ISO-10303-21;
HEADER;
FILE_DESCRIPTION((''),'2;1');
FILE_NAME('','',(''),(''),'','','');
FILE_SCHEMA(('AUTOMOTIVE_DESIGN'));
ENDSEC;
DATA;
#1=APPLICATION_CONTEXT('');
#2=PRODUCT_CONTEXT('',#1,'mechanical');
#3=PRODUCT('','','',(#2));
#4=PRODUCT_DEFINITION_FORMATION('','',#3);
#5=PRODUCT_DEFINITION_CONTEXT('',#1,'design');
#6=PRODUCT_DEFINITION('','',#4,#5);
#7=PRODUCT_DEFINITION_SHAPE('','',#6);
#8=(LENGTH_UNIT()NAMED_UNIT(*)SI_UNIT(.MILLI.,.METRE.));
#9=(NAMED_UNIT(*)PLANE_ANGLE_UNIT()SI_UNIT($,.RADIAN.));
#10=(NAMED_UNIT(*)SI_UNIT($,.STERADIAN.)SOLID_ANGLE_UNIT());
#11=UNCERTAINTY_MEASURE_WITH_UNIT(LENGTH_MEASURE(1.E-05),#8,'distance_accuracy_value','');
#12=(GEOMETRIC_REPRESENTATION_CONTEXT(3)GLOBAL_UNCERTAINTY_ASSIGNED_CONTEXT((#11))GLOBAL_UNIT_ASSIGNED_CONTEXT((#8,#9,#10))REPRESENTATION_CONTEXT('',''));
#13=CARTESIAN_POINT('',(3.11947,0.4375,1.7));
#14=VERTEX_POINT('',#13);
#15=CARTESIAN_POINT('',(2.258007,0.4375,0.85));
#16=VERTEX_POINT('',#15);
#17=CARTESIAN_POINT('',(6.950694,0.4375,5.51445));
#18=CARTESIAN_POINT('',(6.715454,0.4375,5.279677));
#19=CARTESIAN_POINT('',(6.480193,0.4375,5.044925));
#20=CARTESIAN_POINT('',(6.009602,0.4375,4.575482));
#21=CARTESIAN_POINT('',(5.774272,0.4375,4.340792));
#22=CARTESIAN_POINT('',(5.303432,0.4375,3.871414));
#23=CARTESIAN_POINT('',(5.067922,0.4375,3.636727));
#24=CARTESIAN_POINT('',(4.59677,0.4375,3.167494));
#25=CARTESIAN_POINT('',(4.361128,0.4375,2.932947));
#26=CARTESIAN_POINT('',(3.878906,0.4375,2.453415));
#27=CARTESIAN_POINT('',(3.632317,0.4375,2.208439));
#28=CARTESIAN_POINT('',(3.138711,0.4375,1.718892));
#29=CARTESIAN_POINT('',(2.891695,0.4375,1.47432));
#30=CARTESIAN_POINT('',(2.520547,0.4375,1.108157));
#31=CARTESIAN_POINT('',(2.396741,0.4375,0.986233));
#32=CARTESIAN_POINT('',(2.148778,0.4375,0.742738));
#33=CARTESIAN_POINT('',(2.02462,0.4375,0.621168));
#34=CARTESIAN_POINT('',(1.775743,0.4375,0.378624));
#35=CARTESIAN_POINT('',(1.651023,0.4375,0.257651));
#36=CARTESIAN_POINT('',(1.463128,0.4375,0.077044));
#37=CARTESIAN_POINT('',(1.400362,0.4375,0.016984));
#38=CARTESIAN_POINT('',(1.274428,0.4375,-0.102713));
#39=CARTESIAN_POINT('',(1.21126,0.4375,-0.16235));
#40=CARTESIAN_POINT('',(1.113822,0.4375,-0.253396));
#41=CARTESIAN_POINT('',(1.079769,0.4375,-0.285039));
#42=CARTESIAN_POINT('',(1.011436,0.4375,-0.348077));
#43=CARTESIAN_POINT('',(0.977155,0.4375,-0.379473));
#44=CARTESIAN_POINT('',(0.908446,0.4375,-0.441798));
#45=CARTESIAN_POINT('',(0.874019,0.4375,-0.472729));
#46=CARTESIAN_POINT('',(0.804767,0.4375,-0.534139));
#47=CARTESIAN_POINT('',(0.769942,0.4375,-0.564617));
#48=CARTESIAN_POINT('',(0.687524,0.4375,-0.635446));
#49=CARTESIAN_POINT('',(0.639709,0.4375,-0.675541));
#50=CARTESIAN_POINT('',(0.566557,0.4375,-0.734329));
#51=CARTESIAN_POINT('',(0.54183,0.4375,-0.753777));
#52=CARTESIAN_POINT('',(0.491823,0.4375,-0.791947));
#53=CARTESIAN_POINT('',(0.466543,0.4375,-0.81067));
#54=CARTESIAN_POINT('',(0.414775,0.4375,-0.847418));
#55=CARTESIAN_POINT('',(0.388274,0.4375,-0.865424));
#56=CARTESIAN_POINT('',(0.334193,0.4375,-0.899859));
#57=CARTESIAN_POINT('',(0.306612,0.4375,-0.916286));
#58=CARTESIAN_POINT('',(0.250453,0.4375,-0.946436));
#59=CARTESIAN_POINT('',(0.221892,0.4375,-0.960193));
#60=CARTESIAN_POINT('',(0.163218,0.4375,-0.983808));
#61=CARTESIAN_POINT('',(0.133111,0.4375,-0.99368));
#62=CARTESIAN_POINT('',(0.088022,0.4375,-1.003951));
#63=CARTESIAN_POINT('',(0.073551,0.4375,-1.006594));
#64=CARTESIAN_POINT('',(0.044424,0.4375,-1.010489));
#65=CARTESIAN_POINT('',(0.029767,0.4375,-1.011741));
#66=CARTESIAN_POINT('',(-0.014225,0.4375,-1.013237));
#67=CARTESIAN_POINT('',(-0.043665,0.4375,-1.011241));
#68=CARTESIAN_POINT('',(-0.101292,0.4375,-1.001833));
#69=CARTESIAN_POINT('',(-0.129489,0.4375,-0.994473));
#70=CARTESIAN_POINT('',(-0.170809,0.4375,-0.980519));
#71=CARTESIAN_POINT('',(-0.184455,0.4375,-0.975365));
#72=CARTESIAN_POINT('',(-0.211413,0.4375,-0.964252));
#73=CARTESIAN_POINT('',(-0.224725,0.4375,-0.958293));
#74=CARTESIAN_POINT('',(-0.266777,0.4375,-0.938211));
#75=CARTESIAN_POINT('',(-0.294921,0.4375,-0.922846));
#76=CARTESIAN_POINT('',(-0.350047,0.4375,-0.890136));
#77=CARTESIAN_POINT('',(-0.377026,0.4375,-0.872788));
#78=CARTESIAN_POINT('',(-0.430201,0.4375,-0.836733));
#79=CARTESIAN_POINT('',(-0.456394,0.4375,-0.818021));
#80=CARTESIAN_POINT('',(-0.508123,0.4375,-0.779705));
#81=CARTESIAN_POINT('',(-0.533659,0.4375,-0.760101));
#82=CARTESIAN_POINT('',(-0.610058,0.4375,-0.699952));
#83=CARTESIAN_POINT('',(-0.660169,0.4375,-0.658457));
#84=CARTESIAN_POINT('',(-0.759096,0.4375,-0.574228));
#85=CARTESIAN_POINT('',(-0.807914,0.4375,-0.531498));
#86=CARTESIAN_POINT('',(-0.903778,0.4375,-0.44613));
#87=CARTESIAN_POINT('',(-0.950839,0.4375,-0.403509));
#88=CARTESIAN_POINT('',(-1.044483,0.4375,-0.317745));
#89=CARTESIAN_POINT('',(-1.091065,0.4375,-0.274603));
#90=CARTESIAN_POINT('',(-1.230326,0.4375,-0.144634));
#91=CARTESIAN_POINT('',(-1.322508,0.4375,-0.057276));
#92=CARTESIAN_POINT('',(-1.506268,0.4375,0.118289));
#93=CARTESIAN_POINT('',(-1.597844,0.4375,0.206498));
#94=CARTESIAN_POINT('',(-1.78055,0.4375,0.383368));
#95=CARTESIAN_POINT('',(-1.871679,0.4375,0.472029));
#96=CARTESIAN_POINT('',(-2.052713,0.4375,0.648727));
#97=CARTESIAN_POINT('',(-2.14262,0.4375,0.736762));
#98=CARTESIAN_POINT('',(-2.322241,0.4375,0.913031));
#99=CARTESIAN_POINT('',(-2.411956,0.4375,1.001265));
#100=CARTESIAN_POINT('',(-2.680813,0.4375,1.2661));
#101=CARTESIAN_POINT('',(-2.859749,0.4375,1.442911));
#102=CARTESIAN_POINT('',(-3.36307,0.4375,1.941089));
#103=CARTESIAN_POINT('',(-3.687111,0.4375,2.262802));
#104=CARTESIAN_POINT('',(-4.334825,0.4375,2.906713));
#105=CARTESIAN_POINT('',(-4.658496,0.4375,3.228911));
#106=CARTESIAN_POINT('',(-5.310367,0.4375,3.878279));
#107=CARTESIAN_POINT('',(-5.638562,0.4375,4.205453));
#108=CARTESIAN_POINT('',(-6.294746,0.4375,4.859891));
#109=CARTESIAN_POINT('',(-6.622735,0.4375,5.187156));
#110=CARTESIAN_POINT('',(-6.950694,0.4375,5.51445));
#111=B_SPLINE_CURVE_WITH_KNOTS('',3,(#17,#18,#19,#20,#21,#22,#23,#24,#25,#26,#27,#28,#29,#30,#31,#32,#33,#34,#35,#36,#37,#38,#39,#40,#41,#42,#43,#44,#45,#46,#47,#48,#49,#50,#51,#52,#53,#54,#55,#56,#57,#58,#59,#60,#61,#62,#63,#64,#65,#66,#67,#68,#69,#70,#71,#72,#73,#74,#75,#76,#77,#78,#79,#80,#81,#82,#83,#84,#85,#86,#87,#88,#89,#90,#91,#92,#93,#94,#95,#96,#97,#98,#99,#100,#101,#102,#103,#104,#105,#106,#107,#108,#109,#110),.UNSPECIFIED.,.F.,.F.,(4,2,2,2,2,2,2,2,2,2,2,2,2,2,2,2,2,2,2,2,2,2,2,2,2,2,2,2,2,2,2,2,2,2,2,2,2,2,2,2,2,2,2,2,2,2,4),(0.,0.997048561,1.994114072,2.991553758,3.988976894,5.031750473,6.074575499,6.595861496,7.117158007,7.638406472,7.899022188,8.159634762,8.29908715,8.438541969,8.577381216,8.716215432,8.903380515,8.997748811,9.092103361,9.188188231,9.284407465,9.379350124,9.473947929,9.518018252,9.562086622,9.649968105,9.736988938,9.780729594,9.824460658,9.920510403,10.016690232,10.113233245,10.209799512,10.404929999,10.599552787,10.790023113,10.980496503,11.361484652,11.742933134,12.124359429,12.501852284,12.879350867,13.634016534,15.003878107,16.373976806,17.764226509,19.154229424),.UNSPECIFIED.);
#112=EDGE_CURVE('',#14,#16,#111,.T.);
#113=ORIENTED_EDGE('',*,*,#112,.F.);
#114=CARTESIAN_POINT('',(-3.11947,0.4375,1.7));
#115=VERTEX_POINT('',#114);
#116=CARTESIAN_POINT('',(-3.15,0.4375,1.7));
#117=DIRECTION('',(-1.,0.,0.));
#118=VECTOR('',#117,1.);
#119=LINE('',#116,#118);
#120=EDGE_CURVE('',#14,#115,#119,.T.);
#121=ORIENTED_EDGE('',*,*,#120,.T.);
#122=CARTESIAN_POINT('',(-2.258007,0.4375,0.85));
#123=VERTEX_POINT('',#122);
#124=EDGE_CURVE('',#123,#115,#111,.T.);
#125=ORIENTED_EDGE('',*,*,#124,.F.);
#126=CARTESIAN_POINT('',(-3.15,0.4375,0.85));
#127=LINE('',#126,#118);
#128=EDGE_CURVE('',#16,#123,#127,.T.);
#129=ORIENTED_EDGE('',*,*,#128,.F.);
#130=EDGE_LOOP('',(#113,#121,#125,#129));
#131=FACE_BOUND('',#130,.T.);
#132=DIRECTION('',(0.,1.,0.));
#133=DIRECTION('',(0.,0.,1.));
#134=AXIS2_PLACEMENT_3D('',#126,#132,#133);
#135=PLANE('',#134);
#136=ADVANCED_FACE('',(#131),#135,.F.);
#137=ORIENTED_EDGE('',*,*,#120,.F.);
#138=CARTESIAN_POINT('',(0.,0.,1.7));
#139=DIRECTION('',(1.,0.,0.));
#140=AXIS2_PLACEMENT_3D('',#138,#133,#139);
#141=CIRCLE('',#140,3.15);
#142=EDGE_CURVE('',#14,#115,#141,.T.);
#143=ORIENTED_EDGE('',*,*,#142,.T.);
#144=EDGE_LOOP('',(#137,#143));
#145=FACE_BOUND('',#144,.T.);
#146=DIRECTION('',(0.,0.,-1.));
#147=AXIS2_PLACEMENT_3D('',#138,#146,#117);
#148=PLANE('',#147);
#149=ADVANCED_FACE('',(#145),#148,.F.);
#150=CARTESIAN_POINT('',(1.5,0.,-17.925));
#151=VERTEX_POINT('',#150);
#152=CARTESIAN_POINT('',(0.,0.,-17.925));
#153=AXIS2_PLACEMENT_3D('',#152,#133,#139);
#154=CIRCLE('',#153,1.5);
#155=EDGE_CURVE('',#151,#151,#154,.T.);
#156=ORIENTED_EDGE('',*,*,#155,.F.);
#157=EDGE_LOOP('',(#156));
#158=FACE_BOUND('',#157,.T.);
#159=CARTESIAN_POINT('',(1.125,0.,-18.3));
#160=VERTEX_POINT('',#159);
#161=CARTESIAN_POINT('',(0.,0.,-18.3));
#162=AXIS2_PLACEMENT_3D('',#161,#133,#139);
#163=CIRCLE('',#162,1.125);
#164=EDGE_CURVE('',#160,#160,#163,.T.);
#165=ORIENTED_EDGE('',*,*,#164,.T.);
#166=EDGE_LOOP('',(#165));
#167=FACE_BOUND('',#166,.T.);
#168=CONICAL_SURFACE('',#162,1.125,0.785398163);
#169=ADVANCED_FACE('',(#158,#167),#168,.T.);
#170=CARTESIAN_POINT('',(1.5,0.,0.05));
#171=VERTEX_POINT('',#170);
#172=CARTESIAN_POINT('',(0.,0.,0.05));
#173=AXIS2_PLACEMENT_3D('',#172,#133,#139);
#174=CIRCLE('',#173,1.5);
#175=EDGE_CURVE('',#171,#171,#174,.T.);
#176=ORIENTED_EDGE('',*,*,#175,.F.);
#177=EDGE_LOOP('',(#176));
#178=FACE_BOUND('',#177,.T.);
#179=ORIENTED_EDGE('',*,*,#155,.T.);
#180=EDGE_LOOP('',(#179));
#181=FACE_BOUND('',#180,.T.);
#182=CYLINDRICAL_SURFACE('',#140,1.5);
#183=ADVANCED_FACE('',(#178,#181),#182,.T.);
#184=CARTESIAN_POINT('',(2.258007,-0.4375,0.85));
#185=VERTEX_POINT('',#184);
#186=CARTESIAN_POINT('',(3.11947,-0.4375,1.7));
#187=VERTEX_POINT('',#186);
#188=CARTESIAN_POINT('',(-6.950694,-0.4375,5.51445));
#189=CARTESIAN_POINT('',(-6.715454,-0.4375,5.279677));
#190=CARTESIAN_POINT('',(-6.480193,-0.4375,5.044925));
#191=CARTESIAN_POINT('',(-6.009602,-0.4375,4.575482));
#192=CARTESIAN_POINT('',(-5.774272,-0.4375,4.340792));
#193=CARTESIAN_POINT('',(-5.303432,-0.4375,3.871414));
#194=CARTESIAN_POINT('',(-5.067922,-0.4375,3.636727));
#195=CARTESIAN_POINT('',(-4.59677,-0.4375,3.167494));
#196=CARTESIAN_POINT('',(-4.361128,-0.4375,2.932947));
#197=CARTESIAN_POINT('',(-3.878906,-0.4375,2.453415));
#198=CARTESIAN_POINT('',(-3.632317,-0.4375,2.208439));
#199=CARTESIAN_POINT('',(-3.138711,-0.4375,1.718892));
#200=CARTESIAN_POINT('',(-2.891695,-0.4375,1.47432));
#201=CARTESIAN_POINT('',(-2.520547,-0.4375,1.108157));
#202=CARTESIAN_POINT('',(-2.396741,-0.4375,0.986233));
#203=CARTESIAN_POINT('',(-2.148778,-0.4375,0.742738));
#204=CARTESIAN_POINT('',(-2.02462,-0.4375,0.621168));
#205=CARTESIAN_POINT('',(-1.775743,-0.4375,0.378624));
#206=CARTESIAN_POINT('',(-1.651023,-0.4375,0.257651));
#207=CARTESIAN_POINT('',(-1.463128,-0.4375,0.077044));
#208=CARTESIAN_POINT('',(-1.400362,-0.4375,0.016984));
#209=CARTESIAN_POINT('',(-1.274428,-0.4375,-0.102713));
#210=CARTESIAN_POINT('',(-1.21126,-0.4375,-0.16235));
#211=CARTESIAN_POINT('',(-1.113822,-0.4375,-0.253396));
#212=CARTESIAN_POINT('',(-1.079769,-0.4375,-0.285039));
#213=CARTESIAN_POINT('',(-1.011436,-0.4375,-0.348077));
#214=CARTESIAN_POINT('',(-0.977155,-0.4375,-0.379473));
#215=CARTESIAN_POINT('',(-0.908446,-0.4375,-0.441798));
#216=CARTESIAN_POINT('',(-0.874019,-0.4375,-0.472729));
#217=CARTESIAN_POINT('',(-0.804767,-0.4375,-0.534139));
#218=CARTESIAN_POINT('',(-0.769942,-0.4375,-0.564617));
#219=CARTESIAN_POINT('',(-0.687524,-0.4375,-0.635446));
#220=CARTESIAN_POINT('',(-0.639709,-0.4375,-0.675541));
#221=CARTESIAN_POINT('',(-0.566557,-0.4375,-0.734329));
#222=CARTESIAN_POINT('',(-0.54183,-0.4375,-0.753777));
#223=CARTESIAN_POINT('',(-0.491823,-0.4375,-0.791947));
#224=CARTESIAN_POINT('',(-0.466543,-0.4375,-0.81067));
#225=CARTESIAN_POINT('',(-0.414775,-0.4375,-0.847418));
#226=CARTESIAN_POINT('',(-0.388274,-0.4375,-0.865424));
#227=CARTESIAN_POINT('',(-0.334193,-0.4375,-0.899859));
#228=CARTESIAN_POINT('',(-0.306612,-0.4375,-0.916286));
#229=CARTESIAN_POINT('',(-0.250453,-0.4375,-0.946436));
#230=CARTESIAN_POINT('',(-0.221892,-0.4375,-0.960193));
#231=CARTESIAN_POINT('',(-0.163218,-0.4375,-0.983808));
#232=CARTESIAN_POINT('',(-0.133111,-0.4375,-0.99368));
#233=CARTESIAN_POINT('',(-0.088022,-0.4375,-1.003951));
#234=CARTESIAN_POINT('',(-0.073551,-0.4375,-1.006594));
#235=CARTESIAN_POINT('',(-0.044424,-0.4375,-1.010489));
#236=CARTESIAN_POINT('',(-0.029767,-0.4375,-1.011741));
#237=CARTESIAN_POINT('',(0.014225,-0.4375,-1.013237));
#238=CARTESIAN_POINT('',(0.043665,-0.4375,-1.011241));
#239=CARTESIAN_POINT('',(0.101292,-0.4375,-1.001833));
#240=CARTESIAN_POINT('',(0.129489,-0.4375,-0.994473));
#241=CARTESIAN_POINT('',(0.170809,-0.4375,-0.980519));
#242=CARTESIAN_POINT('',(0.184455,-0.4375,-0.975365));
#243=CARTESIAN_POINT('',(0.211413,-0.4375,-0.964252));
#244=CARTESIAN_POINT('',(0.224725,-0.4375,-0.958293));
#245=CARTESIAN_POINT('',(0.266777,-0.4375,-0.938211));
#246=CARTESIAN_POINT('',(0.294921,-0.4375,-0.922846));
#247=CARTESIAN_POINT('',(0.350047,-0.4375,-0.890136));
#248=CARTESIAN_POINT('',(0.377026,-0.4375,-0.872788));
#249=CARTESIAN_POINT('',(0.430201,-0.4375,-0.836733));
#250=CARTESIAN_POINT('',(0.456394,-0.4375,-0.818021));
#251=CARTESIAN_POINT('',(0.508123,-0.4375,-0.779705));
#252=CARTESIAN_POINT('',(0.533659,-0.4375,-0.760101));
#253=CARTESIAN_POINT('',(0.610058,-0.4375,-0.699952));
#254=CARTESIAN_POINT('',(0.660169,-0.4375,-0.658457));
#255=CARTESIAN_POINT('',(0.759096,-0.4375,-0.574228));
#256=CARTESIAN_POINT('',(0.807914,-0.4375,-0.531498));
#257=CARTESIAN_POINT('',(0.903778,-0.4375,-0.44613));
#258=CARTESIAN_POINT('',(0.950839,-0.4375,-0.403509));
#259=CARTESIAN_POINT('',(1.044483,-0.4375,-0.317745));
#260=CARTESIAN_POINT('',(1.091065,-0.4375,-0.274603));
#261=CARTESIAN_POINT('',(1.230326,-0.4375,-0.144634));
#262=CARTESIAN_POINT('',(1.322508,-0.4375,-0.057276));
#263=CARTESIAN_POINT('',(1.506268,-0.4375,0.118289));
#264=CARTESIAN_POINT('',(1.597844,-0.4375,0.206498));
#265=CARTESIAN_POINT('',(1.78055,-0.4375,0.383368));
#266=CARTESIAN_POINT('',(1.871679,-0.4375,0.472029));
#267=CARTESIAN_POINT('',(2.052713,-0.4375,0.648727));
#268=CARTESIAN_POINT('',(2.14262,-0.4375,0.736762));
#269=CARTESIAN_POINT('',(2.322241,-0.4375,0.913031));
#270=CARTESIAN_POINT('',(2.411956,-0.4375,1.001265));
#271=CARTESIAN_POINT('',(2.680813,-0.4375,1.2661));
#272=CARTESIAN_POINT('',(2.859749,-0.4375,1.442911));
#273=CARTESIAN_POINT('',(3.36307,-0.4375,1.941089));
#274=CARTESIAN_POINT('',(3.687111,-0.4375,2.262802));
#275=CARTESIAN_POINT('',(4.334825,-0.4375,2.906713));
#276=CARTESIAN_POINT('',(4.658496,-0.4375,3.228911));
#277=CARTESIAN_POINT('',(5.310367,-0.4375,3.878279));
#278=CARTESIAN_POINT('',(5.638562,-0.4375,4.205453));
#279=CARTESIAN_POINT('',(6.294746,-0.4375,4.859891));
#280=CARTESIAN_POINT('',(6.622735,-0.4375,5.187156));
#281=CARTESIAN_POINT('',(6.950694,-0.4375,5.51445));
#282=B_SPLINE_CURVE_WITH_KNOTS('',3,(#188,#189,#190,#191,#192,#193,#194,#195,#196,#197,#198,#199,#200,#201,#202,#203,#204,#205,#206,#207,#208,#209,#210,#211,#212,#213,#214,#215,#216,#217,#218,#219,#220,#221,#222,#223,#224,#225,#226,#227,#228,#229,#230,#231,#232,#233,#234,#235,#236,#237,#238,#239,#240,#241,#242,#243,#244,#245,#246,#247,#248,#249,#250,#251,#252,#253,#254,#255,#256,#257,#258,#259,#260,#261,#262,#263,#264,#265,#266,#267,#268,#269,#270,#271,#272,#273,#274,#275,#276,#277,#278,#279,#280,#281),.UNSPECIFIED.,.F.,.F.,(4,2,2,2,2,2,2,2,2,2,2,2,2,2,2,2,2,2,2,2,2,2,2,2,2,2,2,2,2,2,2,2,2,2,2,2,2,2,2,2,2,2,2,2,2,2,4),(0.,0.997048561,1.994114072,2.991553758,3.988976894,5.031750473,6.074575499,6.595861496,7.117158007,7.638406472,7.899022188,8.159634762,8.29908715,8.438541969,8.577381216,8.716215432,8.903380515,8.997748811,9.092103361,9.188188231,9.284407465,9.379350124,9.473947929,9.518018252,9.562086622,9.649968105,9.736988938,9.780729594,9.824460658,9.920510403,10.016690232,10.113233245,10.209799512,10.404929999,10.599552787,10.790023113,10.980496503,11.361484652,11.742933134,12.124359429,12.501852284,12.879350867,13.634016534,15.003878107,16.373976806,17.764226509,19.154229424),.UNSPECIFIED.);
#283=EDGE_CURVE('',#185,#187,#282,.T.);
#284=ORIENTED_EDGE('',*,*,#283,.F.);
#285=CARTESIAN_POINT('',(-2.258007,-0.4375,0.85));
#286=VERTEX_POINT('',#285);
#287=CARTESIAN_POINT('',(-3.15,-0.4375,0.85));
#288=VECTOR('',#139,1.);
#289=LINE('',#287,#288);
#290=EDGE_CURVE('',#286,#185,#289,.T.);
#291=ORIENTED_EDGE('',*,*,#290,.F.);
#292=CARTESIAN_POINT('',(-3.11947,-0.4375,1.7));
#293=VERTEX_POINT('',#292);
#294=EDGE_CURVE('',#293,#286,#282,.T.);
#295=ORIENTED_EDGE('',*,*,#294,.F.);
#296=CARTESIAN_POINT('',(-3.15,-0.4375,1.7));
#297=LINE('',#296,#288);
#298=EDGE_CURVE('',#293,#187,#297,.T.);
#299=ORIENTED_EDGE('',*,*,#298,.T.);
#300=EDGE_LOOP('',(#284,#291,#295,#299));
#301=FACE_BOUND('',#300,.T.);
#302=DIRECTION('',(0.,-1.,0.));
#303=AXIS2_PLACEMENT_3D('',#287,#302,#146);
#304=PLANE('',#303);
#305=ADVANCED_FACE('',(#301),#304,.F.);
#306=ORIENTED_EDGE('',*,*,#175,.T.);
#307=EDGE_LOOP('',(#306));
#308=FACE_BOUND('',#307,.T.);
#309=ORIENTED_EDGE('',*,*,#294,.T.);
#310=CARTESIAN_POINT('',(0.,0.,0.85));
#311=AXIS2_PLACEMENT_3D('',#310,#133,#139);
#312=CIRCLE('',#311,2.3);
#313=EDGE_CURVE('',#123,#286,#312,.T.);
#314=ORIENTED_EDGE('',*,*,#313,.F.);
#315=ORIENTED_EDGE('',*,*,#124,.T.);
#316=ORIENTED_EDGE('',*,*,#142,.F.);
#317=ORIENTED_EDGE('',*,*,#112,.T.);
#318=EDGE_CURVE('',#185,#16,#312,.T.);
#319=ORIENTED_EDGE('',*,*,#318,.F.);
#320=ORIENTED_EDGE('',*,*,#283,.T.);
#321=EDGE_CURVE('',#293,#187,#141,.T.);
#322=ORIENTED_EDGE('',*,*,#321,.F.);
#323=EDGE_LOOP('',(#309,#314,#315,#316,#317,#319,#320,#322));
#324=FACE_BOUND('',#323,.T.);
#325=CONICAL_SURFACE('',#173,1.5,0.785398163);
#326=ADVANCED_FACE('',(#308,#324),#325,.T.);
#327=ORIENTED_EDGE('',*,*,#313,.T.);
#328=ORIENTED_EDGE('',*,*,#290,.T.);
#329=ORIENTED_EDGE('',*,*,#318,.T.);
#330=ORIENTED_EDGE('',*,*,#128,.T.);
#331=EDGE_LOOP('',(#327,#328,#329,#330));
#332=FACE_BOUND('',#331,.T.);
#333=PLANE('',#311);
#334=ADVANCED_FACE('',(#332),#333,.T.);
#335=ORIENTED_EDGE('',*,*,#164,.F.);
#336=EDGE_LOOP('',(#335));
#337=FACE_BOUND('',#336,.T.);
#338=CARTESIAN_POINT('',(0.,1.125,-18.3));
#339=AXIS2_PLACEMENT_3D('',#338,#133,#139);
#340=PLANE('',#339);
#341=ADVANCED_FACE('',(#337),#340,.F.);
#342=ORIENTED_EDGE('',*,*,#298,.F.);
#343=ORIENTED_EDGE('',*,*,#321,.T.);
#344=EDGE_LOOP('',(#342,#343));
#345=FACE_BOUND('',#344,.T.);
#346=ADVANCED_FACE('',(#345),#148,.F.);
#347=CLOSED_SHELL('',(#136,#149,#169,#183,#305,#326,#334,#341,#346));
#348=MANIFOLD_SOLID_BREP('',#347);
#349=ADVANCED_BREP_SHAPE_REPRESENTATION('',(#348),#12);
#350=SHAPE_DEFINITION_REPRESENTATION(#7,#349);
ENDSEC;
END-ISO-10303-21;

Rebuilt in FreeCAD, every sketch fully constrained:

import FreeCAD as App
import Part
import Sketcher

V = App.Vector
Q = App.Units.Quantity


def add_polygon(sketch, points):
    """Adds a closed chain of lines whose ends are joined by coincident constraints."""
    first, n = sketch.GeometryCount, len(points)
    for a, b in zip(points, points[1:] + points[:1]):
        sketch.addGeometry(Part.LineSegment(App.Vector(*a, 0), App.Vector(*b, 0)), False)
    for i in range(n):
        sketch.addConstraint(Sketcher.Constraint("Coincident", first + i, 2, first + (i + 1) % n, 1))

doc = App.newDocument("Part")
params = doc.addObject("Spreadsheet::Sheet", "Params")
for row, (alias, value) in enumerate([
    ("sketch1_height", "20 mm"),
    ("sketch1_width", "3.15 mm"),
    ("revolution_angle", "360 deg"),
    ("sketch2_width", "6.3 mm"),
    ("pocket1_length", "0.85 mm"),
], start=1):
    params.set(f"A{row}", alias)
    params.set(f"B{row}", "=" + value)
    params.setAlias(f"B{row}", alias)

body = doc.addObject("PartDesign::Body", "Body")

# Sketch on YZ plane
sketch1 = doc.addObject("Sketcher::SketchObject", "Sketch")
body.addObject(sketch1)
sketch1.AttachmentSupport = (doc.YZ_Plane, [""])
sketch1.MapMode = "FlatFace"
add_polygon(sketch1, [(1.5, 0.1), (3.1, 1.7), (0, 1.7), (0, -18.3), (1.1, -18.3), (1.5, -17.9)])  # lines 0-5
sketch1.addConstraint(Sketcher.Constraint("Horizontal", 1))
sketch1.addConstraint(Sketcher.Constraint("Vertical", 2))
sketch1.addConstraint(Sketcher.Constraint("Horizontal", 3))
sketch1.addConstraint(Sketcher.Constraint("Vertical", 5))
sketch1.addConstraint(Sketcher.Constraint("PointOnObject", 1, 2, -2))
sketch1.addConstraint(Sketcher.Constraint("Parallel", 0, 4))
sketch1.addConstraint(Sketcher.Constraint("DistanceY", 2, 2, 2, 1, 20.0))
sketch1.addConstraint(Sketcher.Constraint("Angle", 0, Q("45 deg")))
sketch1.addConstraint(Sketcher.Constraint("DistanceX", 1, 2, 1, 1, 3.15))
sketch1.addConstraint(Sketcher.Constraint("DistanceY", -1, 1, 0, 2, 1.7))
sketch1.addConstraint(Sketcher.Constraint("DistanceX", -1, 1, 4, 2, 1.5))
sketch1.addConstraint(Sketcher.Constraint("DistanceX", 3, 1, 3, 2, 1.125))
sketch1.setExpression("Constraints[12]", "Params.sketch1_height")
sketch1.setExpression("Constraints[14]", "Params.sketch1_width")
revolution = doc.addObject("PartDesign::Revolution", "Revolution")
body.addObject(revolution)
revolution.Profile = sketch1
revolution.ReferenceAxis = (sketch1, ["V_Axis"])
revolution.setExpression("Angle", "Params.revolution_angle")

# Sketch on XY plane
sketch2 = doc.addObject("Sketcher::SketchObject", "Sketch001")
body.addObject(sketch2)
sketch2.AttachmentSupport = (doc.XY_Plane, [""])
sketch2.MapMode = "FlatFace"
sketch2.AttachmentOffset = App.Placement(V(0, 0, 1.7), App.Rotation())
add_polygon(sketch2, [(-3.1, 0.4), (-3.1, -0.4), (3.1, -0.4), (3.1, 0.4)])  # lines 0-3
sketch2.addConstraint(Sketcher.Constraint("Vertical", 0))
sketch2.addConstraint(Sketcher.Constraint("Horizontal", 1))
sketch2.addConstraint(Sketcher.Constraint("Vertical", 2))
sketch2.addConstraint(Sketcher.Constraint("Horizontal", 3))
sketch2.addConstraint(Sketcher.Constraint("Symmetric", 0, 2, 2, 2, -1, 1))
sketch2.addConstraint(Sketcher.Constraint("DistanceX", 1, 1, 1, 2, 6.3))
sketch2.addConstraint(Sketcher.Constraint("DistanceY", 0, 2, 0, 1, 0.875))
sketch2.setExpression("Constraints[9]", "Params.sketch2_width")
pocket1 = doc.addObject("PartDesign::Pocket", "Pocket")
body.addObject(pocket1)
pocket1.Profile = sketch2
pocket1.setExpression("Length", "Params.pocket1_length")

doc.recompute()
